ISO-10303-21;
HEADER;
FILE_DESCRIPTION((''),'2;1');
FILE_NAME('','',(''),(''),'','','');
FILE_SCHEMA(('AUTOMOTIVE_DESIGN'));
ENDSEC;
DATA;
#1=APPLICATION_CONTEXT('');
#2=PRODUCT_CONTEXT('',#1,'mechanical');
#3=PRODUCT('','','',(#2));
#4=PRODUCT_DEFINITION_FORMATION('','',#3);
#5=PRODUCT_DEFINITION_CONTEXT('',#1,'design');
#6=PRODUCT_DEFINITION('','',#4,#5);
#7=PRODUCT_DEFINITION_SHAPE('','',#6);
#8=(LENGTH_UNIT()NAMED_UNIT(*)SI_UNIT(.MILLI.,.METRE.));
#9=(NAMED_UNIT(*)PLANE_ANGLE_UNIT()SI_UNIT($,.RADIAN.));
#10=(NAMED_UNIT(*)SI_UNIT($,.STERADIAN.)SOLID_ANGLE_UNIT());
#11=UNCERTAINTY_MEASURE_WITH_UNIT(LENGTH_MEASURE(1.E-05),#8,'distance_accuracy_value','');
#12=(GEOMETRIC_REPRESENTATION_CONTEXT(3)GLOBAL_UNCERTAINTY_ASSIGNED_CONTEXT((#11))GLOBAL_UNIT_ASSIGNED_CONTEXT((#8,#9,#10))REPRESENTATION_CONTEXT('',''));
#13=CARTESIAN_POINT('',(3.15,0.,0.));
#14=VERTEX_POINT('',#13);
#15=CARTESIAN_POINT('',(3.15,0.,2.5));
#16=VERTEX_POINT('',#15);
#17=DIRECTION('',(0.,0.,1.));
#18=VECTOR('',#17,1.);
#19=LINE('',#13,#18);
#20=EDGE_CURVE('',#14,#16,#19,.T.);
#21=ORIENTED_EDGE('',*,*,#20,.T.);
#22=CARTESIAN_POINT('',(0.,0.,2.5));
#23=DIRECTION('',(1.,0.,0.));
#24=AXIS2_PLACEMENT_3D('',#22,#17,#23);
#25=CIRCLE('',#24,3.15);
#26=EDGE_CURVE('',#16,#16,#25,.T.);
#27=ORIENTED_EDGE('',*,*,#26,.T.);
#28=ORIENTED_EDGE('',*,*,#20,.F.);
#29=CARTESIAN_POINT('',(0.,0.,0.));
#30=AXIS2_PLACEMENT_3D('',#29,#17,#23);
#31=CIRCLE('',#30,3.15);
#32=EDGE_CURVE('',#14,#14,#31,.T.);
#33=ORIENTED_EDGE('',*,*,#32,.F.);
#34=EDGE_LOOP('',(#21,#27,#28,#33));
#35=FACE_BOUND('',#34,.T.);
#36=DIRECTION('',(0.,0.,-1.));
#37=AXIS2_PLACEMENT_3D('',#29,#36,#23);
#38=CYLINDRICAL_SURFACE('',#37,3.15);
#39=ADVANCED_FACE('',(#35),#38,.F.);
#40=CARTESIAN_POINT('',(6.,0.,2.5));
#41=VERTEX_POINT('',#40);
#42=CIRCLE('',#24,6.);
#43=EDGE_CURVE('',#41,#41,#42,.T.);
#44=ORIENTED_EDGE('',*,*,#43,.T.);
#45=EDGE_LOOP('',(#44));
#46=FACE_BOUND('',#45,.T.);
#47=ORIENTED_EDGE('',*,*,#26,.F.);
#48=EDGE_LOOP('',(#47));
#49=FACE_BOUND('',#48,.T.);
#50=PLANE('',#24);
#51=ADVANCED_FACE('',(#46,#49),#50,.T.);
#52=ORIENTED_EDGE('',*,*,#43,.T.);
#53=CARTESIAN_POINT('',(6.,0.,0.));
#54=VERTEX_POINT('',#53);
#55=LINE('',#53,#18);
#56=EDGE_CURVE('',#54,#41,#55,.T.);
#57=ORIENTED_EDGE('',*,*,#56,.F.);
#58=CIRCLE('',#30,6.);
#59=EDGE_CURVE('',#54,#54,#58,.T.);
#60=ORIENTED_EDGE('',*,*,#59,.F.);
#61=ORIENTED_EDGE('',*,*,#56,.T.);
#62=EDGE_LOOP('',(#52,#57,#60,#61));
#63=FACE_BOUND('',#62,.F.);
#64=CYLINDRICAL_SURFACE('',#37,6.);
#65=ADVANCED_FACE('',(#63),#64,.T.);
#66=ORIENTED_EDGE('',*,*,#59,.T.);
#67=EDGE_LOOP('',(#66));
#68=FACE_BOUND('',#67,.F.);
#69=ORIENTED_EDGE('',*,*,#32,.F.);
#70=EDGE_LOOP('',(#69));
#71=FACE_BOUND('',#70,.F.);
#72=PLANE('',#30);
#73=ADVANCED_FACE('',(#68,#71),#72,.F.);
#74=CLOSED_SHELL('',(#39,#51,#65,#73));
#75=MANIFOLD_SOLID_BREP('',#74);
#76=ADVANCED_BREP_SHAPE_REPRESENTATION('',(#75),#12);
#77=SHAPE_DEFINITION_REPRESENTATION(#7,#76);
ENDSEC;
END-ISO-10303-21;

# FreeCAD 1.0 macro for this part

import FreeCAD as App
import Part
import Sketcher

V = App.Vector

doc = App.newDocument("Part")
params = doc.addObject("Spreadsheet::Sheet", "Params")
for row, (alias, value) in enumerate([
    ("sketch1_diameter", "12 mm"),
    ("sketch1_diameter2", "6.3 mm"),
    ("pad1_length", "2.5 mm"),
], start=1):
    params.set(f"A{row}", alias)
    params.set(f"B{row}", "=" + value)
    params.setAlias(f"B{row}", alias)

body = doc.addObject("PartDesign::Body", "Body")

# Sketch on XY plane
sketch1 = body.newObject("Sketcher::SketchObject", "Sketch")
sketch1.AttachmentSupport = (doc.getObject("XY_Plane"), [""])
sketch1.MapMode = "FlatFace"
sketch1.addGeometry([
    Part.Circle(V(0, 0, 0), V(0, 0, 1), 6),
    Part.Circle(V(0, 0, 0), V(0, 0, 1), 3.1),
], False)
sketch1.addConstraint([
    Sketcher.Constraint("Coincident", 0, 3, -1, 1),
    Sketcher.Constraint("Coincident", 1, 3, -1, 1),
    Sketcher.Constraint("Diameter", 0, 12.0),
    Sketcher.Constraint("Diameter", 1, 6.3),
])
sketch1.setExpression("Constraints[2]", "Params.sketch1_diameter")
sketch1.setExpression("Constraints[3]", "Params.sketch1_diameter2")
pad1 = body.newObject("PartDesign::Pad", "Pad")
pad1.Profile = sketch1
pad1.setExpression("Length", "Params.pad1_length")

doc.recompute()
